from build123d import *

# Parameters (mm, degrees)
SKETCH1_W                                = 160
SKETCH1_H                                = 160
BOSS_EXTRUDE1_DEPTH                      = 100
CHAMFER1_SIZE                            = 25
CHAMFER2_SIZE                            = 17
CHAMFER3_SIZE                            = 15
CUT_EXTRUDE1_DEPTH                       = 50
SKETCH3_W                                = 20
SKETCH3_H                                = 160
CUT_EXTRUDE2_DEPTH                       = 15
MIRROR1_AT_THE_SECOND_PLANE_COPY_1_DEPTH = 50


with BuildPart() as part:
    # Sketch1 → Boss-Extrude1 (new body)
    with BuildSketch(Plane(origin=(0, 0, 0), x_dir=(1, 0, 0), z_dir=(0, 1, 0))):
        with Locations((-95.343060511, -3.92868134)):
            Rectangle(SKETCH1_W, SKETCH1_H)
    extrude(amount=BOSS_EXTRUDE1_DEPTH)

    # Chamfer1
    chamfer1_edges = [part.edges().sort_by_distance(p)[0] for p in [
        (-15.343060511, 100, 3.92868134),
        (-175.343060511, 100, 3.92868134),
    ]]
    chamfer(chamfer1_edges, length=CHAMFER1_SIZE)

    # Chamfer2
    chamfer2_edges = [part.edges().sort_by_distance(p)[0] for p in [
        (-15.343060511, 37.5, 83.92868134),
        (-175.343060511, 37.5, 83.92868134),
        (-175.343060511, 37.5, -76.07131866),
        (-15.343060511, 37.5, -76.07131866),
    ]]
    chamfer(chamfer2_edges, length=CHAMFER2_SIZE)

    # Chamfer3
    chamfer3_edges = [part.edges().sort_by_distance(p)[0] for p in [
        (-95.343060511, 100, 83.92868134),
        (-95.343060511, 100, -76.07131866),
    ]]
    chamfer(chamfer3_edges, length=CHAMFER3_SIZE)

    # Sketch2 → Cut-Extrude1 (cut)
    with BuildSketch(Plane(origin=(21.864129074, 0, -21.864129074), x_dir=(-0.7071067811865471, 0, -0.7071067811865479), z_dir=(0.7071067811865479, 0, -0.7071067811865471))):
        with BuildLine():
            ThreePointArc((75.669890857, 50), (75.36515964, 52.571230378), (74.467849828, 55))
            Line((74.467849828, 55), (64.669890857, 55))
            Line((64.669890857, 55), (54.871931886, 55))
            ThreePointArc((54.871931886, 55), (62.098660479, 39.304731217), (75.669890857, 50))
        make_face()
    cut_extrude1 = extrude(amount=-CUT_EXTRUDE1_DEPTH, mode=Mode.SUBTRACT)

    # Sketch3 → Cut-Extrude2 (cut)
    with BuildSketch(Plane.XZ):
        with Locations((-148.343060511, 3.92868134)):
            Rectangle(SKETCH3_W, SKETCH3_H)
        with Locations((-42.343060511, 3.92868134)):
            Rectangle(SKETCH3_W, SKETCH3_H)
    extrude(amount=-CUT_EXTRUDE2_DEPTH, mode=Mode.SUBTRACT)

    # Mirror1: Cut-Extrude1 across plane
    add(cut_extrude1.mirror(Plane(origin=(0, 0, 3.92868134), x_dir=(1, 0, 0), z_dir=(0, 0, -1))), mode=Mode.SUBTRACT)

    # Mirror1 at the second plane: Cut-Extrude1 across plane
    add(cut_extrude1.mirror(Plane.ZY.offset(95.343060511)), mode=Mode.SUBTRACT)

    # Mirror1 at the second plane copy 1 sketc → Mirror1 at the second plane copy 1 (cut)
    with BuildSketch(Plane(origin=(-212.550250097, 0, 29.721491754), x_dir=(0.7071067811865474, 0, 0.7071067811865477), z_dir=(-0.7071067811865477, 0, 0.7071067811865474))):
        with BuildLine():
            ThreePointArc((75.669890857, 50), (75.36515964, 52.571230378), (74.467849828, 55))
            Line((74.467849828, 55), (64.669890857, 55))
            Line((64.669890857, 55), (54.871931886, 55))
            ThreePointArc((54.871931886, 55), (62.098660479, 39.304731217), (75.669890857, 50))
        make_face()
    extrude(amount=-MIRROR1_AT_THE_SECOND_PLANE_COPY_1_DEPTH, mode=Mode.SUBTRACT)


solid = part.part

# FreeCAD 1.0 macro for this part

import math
import FreeCAD as App
import Part
import Sketcher

V = App.Vector


def edges_at(feature, points):
    """Names of the edges that pass closest to the given points."""
    edges = feature.Shape.Edges
    near = lambda p: min(range(len(edges)), key=lambda i: edges[i].distToShape(Part.Vertex(*p))[0])
    return sorted({f"Edge{near(p) + 1}" for p in points})

doc = App.newDocument("Part")
params = doc.addObject("Spreadsheet::Sheet", "Params")
for row, (alias, value) in enumerate([
    ("sketch1_width", "160 mm"),
    ("pad1_length", "100 mm"),
    ("chamfer_size", "25 mm"),
    ("chamfer2_size", "17 mm"),
    ("chamfer3_size", "15 mm"),
    ("sketch2_radius", "11 mm"),
    ("pocket1_length", "50 mm"),
    ("sketch3_width", "20 mm"),
    ("sketch3_height", "160 mm"),
    ("pocket2_length", "15 mm"),
    ("sketch4_radius", "11 mm"),
    ("pocket3_length", "50 mm"),
], start=1):
    params.set(f"A{row}", alias)
    params.set(f"B{row}", "=" + value)
    params.setAlias(f"B{row}", alias)

body = doc.addObject("PartDesign::Body", "Body")

sketch1 = doc.addObject("Sketcher::SketchObject", "Sketch")
body.addObject(sketch1)
sketch1.AttachmentSupport = (doc.XZ_Plane, [""])
sketch1.MapMode = "FlatFace"
sketch1.addGeometry([
    Part.LineSegment(V(-175, -76, 0), V(-175, 84, 0)),
    Part.LineSegment(V(-175, 84, 0), V(-15, 84, 0)),
    Part.LineSegment(V(-15, 84, 0), V(-15, -76, 0)),
    Part.LineSegment(V(-15, -76, 0), V(-175, -76, 0)),
], False)
sketch1.addConstraint([
    Sketcher.Constraint("Coincident", 0, 2, 1, 1),
    Sketcher.Constraint("Coincident", 1, 2, 2, 1),
    Sketcher.Constraint("Coincident", 2, 2, 3, 1),
    Sketcher.Constraint("Coincident", 3, 2, 0, 1),
    Sketcher.Constraint("Vertical", 0),
    Sketcher.Constraint("Horizontal", 1),
    Sketcher.Constraint("Vertical", 2),
    Sketcher.Constraint("Horizontal", 3),
    Sketcher.Constraint("Equal", 3, 0),
    Sketcher.Constraint("DistanceX", 1, 1, 1, 2, 160.0),
    Sketcher.Constraint("DistanceX", 0, 2, -1, 1, 175.343061),
    Sketcher.Constraint("DistanceY", -1, 1, 0, 2, 83.928681),
])
sketch1.setExpression("Constraints[9]", "Params.sketch1_width")
pad1 = doc.addObject("PartDesign::Pad", "Pad")
body.addObject(pad1)
pad1.Profile = sketch1
pad1.setExpression("Length", "Params.pad1_length")
pad1.Reversed = True
doc.recompute()

chamfer = doc.addObject("PartDesign::Chamfer", "Chamfer")
body.addObject(chamfer)
chamfer.Base = (pad1, edges_at(pad1, [(-15.343, 100, 3.929), (-175.343, 100, 3.929)]))
chamfer.setExpression("Size", "Params.chamfer_size")
doc.recompute()

chamfer2 = doc.addObject("PartDesign::Chamfer", "Chamfer001")
body.addObject(chamfer2)
chamfer2.Base = (chamfer, edges_at(chamfer, [
    (-15.343, 37.5, 83.929),
    (-175.343, 37.5, 83.929),
    (-175.343, 37.5, -76.071),
    (-15.343, 37.5, -76.071),
]))
chamfer2.setExpression("Size", "Params.chamfer2_size")
doc.recompute()

chamfer3 = doc.addObject("PartDesign::Chamfer", "Chamfer002")
body.addObject(chamfer3)
chamfer3.Base = (chamfer2, edges_at(chamfer2, [(-95.343, 100, 83.929), (-95.343, 100, -76.071)]))
chamfer3.setExpression("Size", "Params.chamfer3_size")

sketch2 = doc.addObject("Sketcher::SketchObject", "Sketch001")
body.addObject(sketch2)
sketch2.Placement = App.Placement(V(21.864129, 0, -21.864129), App.Rotation(V(-0.707106781, 0, -0.707106781), V(0, 0.999999999, 0), V(0.707106781, 0, -0.707106781), "ZXY"))
sketch2.addGeometry([
    Part.ArcOfCircle(Part.Circle(V(65, 50, 0), V(0, 0, 1), 11), math.radians(0), math.radians(27)),
    Part.LineSegment(V(74, 55, 0), V(55, 55, 0)),
    Part.ArcOfCircle(Part.Circle(V(65, 50, 0), V(0, 0, 1), 11), math.radians(153), math.radians(360)),
], False)
sketch2.addConstraint([
    Sketcher.Constraint("Coincident", 0, 2, 1, 1),
    Sketcher.Constraint("Coincident", 1, 2, 2, 1),
    Sketcher.Constraint("Tangent", 2, 2, 0, 1),
    Sketcher.Constraint("Horizontal", 1),
    Sketcher.Constraint("Equal", 0, 2),
    Sketcher.Constraint("Horizontal", 0, 3, 2, 2),
    Sketcher.Constraint("Radius", 0, 11.0),
    Sketcher.Constraint("DistanceY", -1, 1, 0, 3, 50.0),
    Sketcher.Constraint("DistanceY", -1, 1, 0, 2, 55.0),
    Sketcher.Constraint("DistanceX", -1, 1, 0, 3, 64.669891),
])
sketch2.setExpression("Constraints[6]", "Params.sketch2_radius")
pocket1 = doc.addObject("PartDesign::Pocket", "Pocket")
body.addObject(pocket1)
pocket1.Profile = sketch2
pocket1.setExpression("Length", "Params.pocket1_length")

sketch3 = doc.addObject("Sketcher::SketchObject", "Sketch002")
body.addObject(sketch3)
sketch3.AttachmentSupport = (doc.XZ_Plane, [""])
sketch3.MapMode = "FlatFace"
sketch3.addGeometry([
    Part.LineSegment(V(-158, 84, 0), V(-158, -76, 0)),
    Part.LineSegment(V(-158, -76, 0), V(-138, -76, 0)),
    Part.LineSegment(V(-138, -76, 0), V(-138, 84, 0)),
    Part.LineSegment(V(-138, 84, 0), V(-158, 84, 0)),
    Part.LineSegment(V(-52, 84, 0), V(-52, -76, 0)),
    Part.LineSegment(V(-52, -76, 0), V(-32, -76, 0)),
    Part.LineSegment(V(-32, -76, 0), V(-32, 84, 0)),
    Part.LineSegment(V(-32, 84, 0), V(-52, 84, 0)),
], False)
sketch3.addConstraint([
    Sketcher.Constraint("Coincident", 0, 2, 1, 1),
    Sketcher.Constraint("Coincident", 1, 2, 2, 1),
    Sketcher.Constraint("Coincident", 2, 2, 3, 1),
    Sketcher.Constraint("Coincident", 3, 2, 0, 1),
    Sketcher.Constraint("Coincident", 4, 2, 5, 1),
    Sketcher.Constraint("Coincident", 5, 2, 6, 1),
    Sketcher.Constraint("Coincident", 6, 2, 7, 1),
    Sketcher.Constraint("Coincident", 7, 2, 4, 1),
    Sketcher.Constraint("Vertical", 0),
    Sketcher.Constraint("Horizontal", 1),
    Sketcher.Constraint("Vertical", 2),
    Sketcher.Constraint("Horizontal", 3),
    Sketcher.Constraint("Vertical", 4),
    Sketcher.Constraint("Horizontal", 5),
    Sketcher.Constraint("Vertical", 6),
    Sketcher.Constraint("Horizontal", 7),
    Sketcher.Constraint("Horizontal", 1, 2, 4, 2),
    Sketcher.Constraint("Horizontal", 3, 2, 6, 2),
    Sketcher.Constraint("Equal", 3, 5),
    Sketcher.Constraint("DistanceX", 1, 1, 1, 2, 20.0),
    Sketcher.Constraint("DistanceY", 0, 2, 0, 1, 160.0),
    Sketcher.Constraint("DistanceX", 1, 2, 4, 2, 86.0),
    Sketcher.Constraint("DistanceX", 0, 2, -1, 1, 158.343061),
    Sketcher.Constraint("DistanceY", 0, 2, -1, 1, 76.071319),
])
sketch3.setExpression("Constraints[19]", "Params.sketch3_width")
sketch3.setExpression("Constraints[20]", "Params.sketch3_height")
pocket2 = doc.addObject("PartDesign::Pocket", "Pocket001")
body.addObject(pocket2)
pocket2.Profile = sketch3
pocket2.setExpression("Length", "Params.pocket2_length")
doc.recompute()

datumplane = doc.addObject("PartDesign::Plane", "DatumPlane")
body.addObject(datumplane)
datumplane.AttachmentSupport = (doc.XY_Plane, [""])
datumplane.MapMode = "FlatFace"
datumplane.AttachmentOffset = App.Placement(V(0, 0, 3.928681), App.Rotation())
mirrored = doc.addObject("PartDesign::Mirrored", "Mirrored")
body.addObject(mirrored)
mirrored.Originals = [pocket1]
mirrored.MirrorPlane = (datumplane, [""])
body.Tip = mirrored
doc.recompute()

datumplane2 = doc.addObject("PartDesign::Plane", "DatumPlane001")
body.addObject(datumplane2)
datumplane2.AttachmentSupport = (doc.YZ_Plane, [""])
datumplane2.MapMode = "FlatFace"
datumplane2.AttachmentOffset = App.Placement(V(0, 0, -95.343061), App.Rotation())
mirrored2 = doc.addObject("PartDesign::Mirrored", "Mirrored001")
body.addObject(mirrored2)
mirrored2.Originals = [pocket1]
mirrored2.MirrorPlane = (datumplane2, [""])
body.Tip = mirrored2

sketch4 = doc.addObject("Sketcher::SketchObject", "Sketch003")
body.addObject(sketch4)
sketch4.Placement = App.Placement(V(-212.55025, 0, 29.721492), App.Rotation(V(0.707106781, 0, 0.707106781), V(0, 0.999999999, 0), V(-0.707106781, 0, 0.707106781), "ZXY"))
sketch4.addGeometry([
    Part.ArcOfCircle(Part.Circle(V(65, 50, 0), V(0, 0, 1), 11), math.radians(0), math.radians(27)),
    Part.LineSegment(V(74, 55, 0), V(55, 55, 0)),
    Part.ArcOfCircle(Part.Circle(V(65, 50, 0), V(0, 0, 1), 11), math.radians(153), math.radians(360)),
], False)
sketch4.addConstraint([
    Sketcher.Constraint("Coincident", 0, 2, 1, 1),
    Sketcher.Constraint("Coincident", 1, 2, 2, 1),
    Sketcher.Constraint("Tangent", 2, 2, 0, 1),
    Sketcher.Constraint("Horizontal", 1),
    Sketcher.Constraint("Equal", 0, 2),
    Sketcher.Constraint("Horizontal", 0, 3, 2, 2),
    Sketcher.Constraint("Radius", 0, 11.0),
    Sketcher.Constraint("DistanceY", -1, 1, 0, 3, 50.0),
    Sketcher.Constraint("DistanceY", -1, 1, 0, 2, 55.0),
    Sketcher.Constraint("DistanceX", -1, 1, 0, 3, 64.669891),
])
sketch4.setExpression("Constraints[6]", "Params.sketch4_radius")
pocket3 = doc.addObject("PartDesign::Pocket", "Pocket002")
body.addObject(pocket3)
pocket3.Profile = sketch4
pocket3.setExpression("Length", "Params.pocket3_length")

doc.recompute()
